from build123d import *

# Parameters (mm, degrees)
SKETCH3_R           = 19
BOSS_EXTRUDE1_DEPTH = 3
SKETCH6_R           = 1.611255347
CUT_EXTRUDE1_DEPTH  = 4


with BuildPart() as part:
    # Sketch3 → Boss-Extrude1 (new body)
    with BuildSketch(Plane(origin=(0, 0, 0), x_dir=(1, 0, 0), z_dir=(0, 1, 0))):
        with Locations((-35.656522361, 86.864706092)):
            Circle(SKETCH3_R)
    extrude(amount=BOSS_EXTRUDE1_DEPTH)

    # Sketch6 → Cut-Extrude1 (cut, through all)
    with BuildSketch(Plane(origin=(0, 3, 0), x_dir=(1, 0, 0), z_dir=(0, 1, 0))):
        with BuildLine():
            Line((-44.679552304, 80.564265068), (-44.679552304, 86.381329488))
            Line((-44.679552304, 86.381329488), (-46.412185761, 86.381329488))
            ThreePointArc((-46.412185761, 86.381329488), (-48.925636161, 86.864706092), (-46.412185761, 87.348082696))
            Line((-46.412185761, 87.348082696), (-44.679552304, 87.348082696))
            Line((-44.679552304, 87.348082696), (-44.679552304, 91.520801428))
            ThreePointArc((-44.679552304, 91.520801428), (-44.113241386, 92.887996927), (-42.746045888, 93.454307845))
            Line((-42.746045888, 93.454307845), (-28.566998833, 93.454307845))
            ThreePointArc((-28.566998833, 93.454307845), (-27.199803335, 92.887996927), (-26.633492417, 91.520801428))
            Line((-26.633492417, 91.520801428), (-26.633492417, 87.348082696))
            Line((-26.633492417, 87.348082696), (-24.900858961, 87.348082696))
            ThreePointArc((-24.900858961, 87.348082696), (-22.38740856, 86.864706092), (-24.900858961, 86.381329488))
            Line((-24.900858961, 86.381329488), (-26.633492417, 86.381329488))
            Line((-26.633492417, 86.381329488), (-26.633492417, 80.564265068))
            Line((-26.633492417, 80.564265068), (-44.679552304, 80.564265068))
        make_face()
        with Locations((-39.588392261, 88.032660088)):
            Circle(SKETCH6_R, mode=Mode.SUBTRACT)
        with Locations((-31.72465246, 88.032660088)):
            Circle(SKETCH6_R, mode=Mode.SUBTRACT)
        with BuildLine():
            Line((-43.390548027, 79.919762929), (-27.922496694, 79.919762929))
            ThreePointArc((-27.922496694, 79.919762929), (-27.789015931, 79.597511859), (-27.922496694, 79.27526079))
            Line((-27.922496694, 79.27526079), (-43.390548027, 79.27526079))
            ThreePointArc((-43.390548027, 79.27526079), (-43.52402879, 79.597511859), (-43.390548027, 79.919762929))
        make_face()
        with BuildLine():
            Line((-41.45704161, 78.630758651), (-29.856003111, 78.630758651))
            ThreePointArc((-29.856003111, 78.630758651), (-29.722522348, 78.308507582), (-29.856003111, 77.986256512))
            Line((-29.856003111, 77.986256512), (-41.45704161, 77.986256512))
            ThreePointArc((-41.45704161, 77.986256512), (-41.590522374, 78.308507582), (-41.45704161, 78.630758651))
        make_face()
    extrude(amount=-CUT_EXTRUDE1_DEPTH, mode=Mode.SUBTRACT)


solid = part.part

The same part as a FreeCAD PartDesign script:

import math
import FreeCAD as App
import Part
import Sketcher

V = App.Vector
Q = App.Units.Quantity

doc = App.newDocument("Part")
body = doc.addObject("PartDesign::Body", "Body")
body.AllowCompound = True

# Sketch on XZ plane
sketch1 = body.newObject("Sketcher::SketchObject", "Sketch")
sketch1.AttachmentSupport = (doc.getObject("XZ_Plane"), [""])
sketch1.MapMode = "FlatFace"
sketch1.addGeometry(Part.Circle(V(-36, -87, 0), V(0, 0, 1), 19), False)
sketch1.addConstraint(Sketcher.Constraint("Diameter", 0, Q("38 mm")))
sketch1.addConstraint(Sketcher.Constraint("DistanceX", 0, 3, -1, 1, Q("35.656522 mm")))
sketch1.addConstraint(Sketcher.Constraint("DistanceY", 0, 3, -1, 1, Q("86.864706 mm")))
pad1 = body.newObject("PartDesign::Pad", "Pad")
pad1.Profile = sketch1
pad1.Length = 3
pad1.Reversed = True

# Sketch on XZ plane
sketch2 = body.newObject("Sketcher::SketchObject", "Sketch001")
sketch2.AttachmentSupport = (doc.getObject("XZ_Plane"), [""])
sketch2.MapMode = "FlatFace"
sketch2.AttachmentOffset = App.Placement(V(0, 0, -3), App.Rotation())
sketch2.addGeometry(Part.LineSegment(V(-44.68, -86.38, 0), V(-44.68, -80.56, 0)), False)
sketch2.addGeometry(Part.LineSegment(V(-44.68, -80.56, 0), V(-26.63, -80.56, 0)), False)
sketch2.addGeometry(Part.LineSegment(V(-26.63, -80.56, 0), V(-26.63, -86.38, 0)), False)
sketch2.addGeometry(Part.LineSegment(V(-26.63, -86.38, 0), V(-24.9, -86.38, 0)), False)
sketch2.addGeometry(Part.ArcOfCircle(Part.Circle(V(-23.69, -86.86, 0), V(0, 0, 1), 1.3), math.radians(-158), math.radians(158)), False)
sketch2.addGeometry(Part.LineSegment(V(-24.9, -87.35, 0), V(-26.63, -87.35, 0)), False)
sketch2.addGeometry(Part.LineSegment(V(-26.63, -87.35, 0), V(-26.63, -91.52, 0)), False)
sketch2.addGeometry(Part.ArcOfCircle(Part.Circle(V(-28.57, -91.52, 0), V(0, 0, 1), 1.93), math.radians(-90), math.radians(0)), False)
sketch2.addGeometry(Part.LineSegment(V(-28.57, -93.45, 0), V(-42.75, -93.45, 0)), False)
sketch2.addGeometry(Part.ArcOfCircle(Part.Circle(V(-42.75, -91.52, 0), V(0, 0, 1), 1.93), math.radians(180), math.radians(270)), False)
sketch2.addGeometry(Part.LineSegment(V(-44.68, -91.52, 0), V(-44.68, -87.35, 0)), False)
sketch2.addGeometry(Part.LineSegment(V(-44.68, -87.35, 0), V(-46.41, -87.35, 0)), False)
sketch2.addGeometry(Part.ArcOfCircle(Part.Circle(V(-47.62, -86.86, 0), V(0, 0, 1), 1.3), math.radians(22), math.radians(338)), False)
sketch2.addGeometry(Part.LineSegment(V(-46.41, -86.38, 0), V(-44.68, -86.38, 0)), False)
sketch2.addGeometry(Part.Circle(V(-31.72, -88.03, 0), V(0, 0, 1), 1.61), False)
sketch2.addGeometry(Part.Circle(V(-39.59, -88.03, 0), V(0, 0, 1), 1.61), False)
sketch2.addGeometry(Part.LineSegment(V(-27.92, -79.92, 0), V(-43.39, -79.92, 0)), False)
sketch2.addGeometry(Part.ArcOfCircle(Part.Circle(V(-43.07, -79.6, 0), V(0, 0, 1), 0.46), math.radians(135), math.radians(225)), False)
sketch2.addGeometry(Part.LineSegment(V(-43.39, -79.28, 0), V(-27.92, -79.28, 0)), False)
sketch2.addGeometry(Part.ArcOfCircle(Part.Circle(V(-28.24, -79.6, 0), V(0, 0, 1), 0.46), math.radians(-45), math.radians(45)), False)
sketch2.addGeometry(Part.LineSegment(V(-29.86, -78.63, 0), V(-41.46, -78.63, 0)), False)
sketch2.addGeometry(Part.ArcOfCircle(Part.Circle(V(-41.13, -78.31, 0), V(0, 0, 1), 0.46), math.radians(135), math.radians(225)), False)
sketch2.addGeometry(Part.LineSegment(V(-41.46, -77.99, 0), V(-29.86, -77.99, 0)), False)
sketch2.addGeometry(Part.ArcOfCircle(Part.Circle(V(-30.18, -78.31, 0), V(0, 0, 1), 0.46), math.radians(-45), math.radians(45)), False)
sketch2.addConstraint(Sketcher.Constraint("Coincident", 0, 2, 1, 1))
sketch2.addConstraint(Sketcher.Constraint("Coincident", 1, 2, 2, 1))
sketch2.addConstraint(Sketcher.Constraint("Coincident", 2, 2, 3, 1))
sketch2.addConstraint(Sketcher.Constraint("Coincident", 3, 2, 4, 2))
sketch2.addConstraint(Sketcher.Constraint("Coincident", 4, 1, 5, 1))
sketch2.addConstraint(Sketcher.Constraint("Coincident", 5, 2, 6, 1))
sketch2.addConstraint(Sketcher.Constraint("Tangent", 6, 2, 7, 2))
sketch2.addConstraint(Sketcher.Constraint("Tangent", 7, 1, 8, 1))
sketch2.addConstraint(Sketcher.Constraint("Tangent", 8, 2, 9, 2))
sketch2.addConstraint(Sketcher.Constraint("Tangent", 9, 1, 10, 1))
sketch2.addConstraint(Sketcher.Constraint("Coincident", 10, 2, 11, 1))
sketch2.addConstraint(Sketcher.Constraint("Coincident", 11, 2, 12, 2))
sketch2.addConstraint(Sketcher.Constraint("Coincident", 12, 1, 13, 1))
sketch2.addConstraint(Sketcher.Constraint("Coincident", 13, 2, 0, 1))
sketch2.addConstraint(Sketcher.Constraint("Coincident", 16, 2, 17, 2))
sketch2.addConstraint(Sketcher.Constraint("Coincident", 17, 1, 18, 1))
sketch2.addConstraint(Sketcher.Constraint("Coincident", 18, 2, 19, 2))
sketch2.addConstraint(Sketcher.Constraint("Coincident", 19, 1, 16, 1))
sketch2.addConstraint(Sketcher.Constraint("Coincident", 20, 2, 21, 2))
sketch2.addConstraint(Sketcher.Constraint("Coincident", 21, 1, 22, 1))
sketch2.addConstraint(Sketcher.Constraint("Coincident", 22, 2, 23, 2))
sketch2.addConstraint(Sketcher.Constraint("Coincident", 23, 1, 20, 1))
sketch2.addConstraint(Sketcher.Constraint("Vertical", 0))
sketch2.addConstraint(Sketcher.Constraint("Horizontal", 1))
sketch2.addConstraint(Sketcher.Constraint("Vertical", 2))
sketch2.addConstraint(Sketcher.Constraint("Horizontal", 3))
sketch2.addConstraint(Sketcher.Constraint("Horizontal", 5))
sketch2.addConstraint(Sketcher.Constraint("Vertical", 6))
sketch2.addConstraint(Sketcher.Constraint("Horizontal", 8))
sketch2.addConstraint(Sketcher.Constraint("Vertical", 10))
sketch2.addConstraint(Sketcher.Constraint("Horizontal", 11))
sketch2.addConstraint(Sketcher.Constraint("Horizontal", 13))
sketch2.addConstraint(Sketcher.Constraint("Horizontal", 16))
sketch2.addConstraint(Sketcher.Constraint("Horizontal", 18))
sketch2.addConstraint(Sketcher.Constraint("Horizontal", 20))
sketch2.addConstraint(Sketcher.Constraint("Horizontal", 22))
sketch2.addConstraint(Sketcher.Constraint("Equal", 7, 9))
sketch2.addConstraint(Sketcher.Constraint("Equal", 4, 12))
sketch2.addConstraint(Sketcher.Constraint("Equal", 14, 15))
sketch2.addConstraint(Sketcher.Constraint("Equal", 17, 19))
sketch2.addConstraint(Sketcher.Constraint("Equal", 19, 21))
sketch2.addConstraint(Sketcher.Constraint("Equal", 21, 23))
sketch2.addConstraint(Sketcher.Constraint("Horizontal", 4, 3, 12, 3))
sketch2.addConstraint(Sketcher.Constraint("Horizontal", 14, 3, 15, 3))
sketch2.addConstraint(Sketcher.Constraint("Horizontal", 17, 3, 19, 3))
sketch2.addConstraint(Sketcher.Constraint("Horizontal", 21, 3, 23, 3))
sketch2.addConstraint(Sketcher.Constraint("Horizontal", 5, 2, 10, 2))
sketch2.addConstraint(Sketcher.Constraint("Horizontal", 3, 2, 12, 1))
sketch2.addConstraint(Sketcher.Constraint("Vertical", 3, 2, 4, 1))
sketch2.addConstraint(Sketcher.Constraint("Vertical", 2, 2, 5, 2))
sketch2.addConstraint(Sketcher.Constraint("Vertical", 0, 2, 9, 1))
sketch2.addConstraint(Sketcher.Constraint("Vertical", 16, 2, 17, 1))
sketch2.addConstraint(Sketcher.Constraint("Vertical", 20, 2, 21, 1))
sketch2.addConstraint(Sketcher.Constraint("Equal", 5, 11))
sketch2.addConstraint(Sketcher.Constraint("Diameter", 14, Q("3.222511 mm")))
sketch2.addConstraint(Sketcher.Constraint("Radius", 17, Q("0.455732 mm")))
sketch2.addConstraint(Sketcher.Constraint("DistanceX", 7, 3, -1, 1, Q("28.566999 mm")))
sketch2.addConstraint(Sketcher.Constraint("Radius", 4, Q("1.303206 mm")))
sketch2.addConstraint(Sketcher.Constraint("Radius", 7, Q("1.933506 mm")))
sketch2.addConstraint(Sketcher.Constraint("DistanceX", 1, 1, 1, 2, Q("18.04606 mm")))
sketch2.addConstraint(Sketcher.Constraint("DistanceX", 16, 2, 16, 1, Q("15.468051 mm")))
sketch2.addConstraint(Sketcher.Constraint("DistanceX", 20, 2, 20, 1, Q("11.601038 mm")))
sketch2.addConstraint(Sketcher.Constraint("DistanceY", 6, 2, 6, 1, Q("4.172719 mm")))
sketch2.addConstraint(Sketcher.Constraint("DistanceY", 7, 3, -1, 1, Q("91.520801 mm")))
sketch2.addConstraint(Sketcher.Constraint("DistanceX", 17, 3, 7, 3, Q("14.501298 mm")))
sketch2.addConstraint(Sketcher.Constraint("DistanceX", 21, 3, 15, 3, Q("1.546398 mm")))
sketch2.addConstraint(Sketcher.Constraint("DistanceY", 12, 3, 21, 3, Q("8.556199 mm")))
sketch2.addConstraint(Sketcher.Constraint("DistanceX", 14, 3, 23, 3, Q("1.546398 mm")))
sketch2.addConstraint(Sketcher.Constraint("DistanceY", 8, 2, 12, 3, Q("6.589602 mm")))
sketch2.addConstraint(Sketcher.Constraint("DistanceX", 3, 1, 3, 2, Q("1.732633 mm")))
sketch2.addConstraint(Sketcher.Constraint("DistanceY", 0, 1, 0, 2, Q("5.817064 mm")))
sketch2.addConstraint(Sketcher.Constraint("DistanceY", 14, 3, -1, 1, Q("88.03266 mm")))
sketch2.addConstraint(Sketcher.Constraint("DistanceY", 17, 3, -1, 1, Q("79.597512 mm")))
sketch2.addConstraint(Sketcher.Constraint("DistanceX", 21, 3, -1, 1, Q("41.134791 mm")))
sketch2.addConstraint(Sketcher.Constraint("DistanceX", 16, 2, -1, 1, Q("43.390548 mm")))
sketch2.addConstraint(Sketcher.Constraint("DistanceX", 20, 2, -1, 1, Q("41.457042 mm")))
pocket1 = body.newObject("PartDesign::Pocket", "Pocket")
pocket1.Profile = sketch2
pocket1.Type = "ThroughAll"
pocket1.Reversed = True

doc.recompute()
